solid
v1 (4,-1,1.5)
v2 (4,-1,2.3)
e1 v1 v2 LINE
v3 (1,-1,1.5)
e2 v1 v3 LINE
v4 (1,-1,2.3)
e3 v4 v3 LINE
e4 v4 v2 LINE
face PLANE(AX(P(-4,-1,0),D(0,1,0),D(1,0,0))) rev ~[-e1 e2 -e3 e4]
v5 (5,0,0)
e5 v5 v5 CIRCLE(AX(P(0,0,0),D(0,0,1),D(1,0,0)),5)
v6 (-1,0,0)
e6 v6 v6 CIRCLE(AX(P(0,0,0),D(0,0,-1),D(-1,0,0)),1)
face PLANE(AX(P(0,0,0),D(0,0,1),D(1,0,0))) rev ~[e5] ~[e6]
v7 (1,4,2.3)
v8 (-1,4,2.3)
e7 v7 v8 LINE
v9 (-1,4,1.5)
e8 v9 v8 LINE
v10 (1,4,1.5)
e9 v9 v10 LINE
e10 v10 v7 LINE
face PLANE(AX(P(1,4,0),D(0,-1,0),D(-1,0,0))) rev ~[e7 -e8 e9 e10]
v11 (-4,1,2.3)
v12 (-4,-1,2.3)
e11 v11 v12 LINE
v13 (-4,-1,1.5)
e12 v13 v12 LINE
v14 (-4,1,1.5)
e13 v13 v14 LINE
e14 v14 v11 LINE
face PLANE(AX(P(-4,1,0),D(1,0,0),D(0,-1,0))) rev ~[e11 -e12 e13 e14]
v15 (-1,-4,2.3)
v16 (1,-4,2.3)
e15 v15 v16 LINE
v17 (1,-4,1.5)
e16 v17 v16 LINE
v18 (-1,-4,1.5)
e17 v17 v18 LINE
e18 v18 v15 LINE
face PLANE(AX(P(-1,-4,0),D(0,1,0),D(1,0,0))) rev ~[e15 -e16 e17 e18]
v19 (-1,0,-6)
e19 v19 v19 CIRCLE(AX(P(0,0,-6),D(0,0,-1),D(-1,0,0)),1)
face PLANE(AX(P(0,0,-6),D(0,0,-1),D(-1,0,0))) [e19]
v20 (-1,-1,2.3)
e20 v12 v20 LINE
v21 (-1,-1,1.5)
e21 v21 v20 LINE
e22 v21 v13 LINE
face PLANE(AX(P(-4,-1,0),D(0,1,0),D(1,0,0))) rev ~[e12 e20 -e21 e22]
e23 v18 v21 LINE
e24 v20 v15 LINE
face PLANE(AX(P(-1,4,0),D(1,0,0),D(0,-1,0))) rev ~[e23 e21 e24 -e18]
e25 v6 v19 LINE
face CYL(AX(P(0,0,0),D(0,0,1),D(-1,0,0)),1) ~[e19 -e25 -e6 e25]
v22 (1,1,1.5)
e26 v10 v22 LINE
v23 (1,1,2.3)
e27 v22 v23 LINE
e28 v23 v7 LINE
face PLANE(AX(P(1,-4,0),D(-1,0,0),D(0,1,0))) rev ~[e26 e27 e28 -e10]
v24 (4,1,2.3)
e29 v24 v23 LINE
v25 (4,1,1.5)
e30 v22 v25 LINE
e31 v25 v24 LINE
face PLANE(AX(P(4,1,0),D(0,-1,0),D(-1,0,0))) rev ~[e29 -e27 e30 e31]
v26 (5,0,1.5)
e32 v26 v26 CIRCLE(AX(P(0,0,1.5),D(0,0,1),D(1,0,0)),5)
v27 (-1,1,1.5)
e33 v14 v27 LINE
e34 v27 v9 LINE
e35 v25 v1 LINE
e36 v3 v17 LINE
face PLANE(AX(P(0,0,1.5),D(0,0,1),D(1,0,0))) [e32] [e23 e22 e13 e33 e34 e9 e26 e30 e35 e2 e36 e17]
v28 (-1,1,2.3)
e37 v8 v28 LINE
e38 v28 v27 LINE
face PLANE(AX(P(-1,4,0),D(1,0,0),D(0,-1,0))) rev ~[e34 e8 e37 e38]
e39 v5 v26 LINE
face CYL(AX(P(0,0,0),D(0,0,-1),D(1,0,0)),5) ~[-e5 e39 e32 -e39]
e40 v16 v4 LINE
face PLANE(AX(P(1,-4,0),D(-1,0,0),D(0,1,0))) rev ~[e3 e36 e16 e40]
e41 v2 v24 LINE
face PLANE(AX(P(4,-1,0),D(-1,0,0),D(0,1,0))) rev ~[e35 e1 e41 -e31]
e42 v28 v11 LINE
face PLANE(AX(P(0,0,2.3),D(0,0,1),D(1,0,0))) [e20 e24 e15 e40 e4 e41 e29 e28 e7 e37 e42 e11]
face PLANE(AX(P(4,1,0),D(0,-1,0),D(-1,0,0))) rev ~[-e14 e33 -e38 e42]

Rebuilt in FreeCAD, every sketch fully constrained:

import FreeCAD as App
import Part
import Sketcher
from FreeCAD import Vector

doc = App.newDocument("Part")
params = doc.addObject("Spreadsheet::Sheet", "Params")
for row, (alias, value) in enumerate([
    ("sketch1_diameter", "10 mm"),
    ("pad1_length", "1.5 mm"),
    ("sketch2_width", "2 mm"),
    ("sketch2_height", "8 mm"),
    ("pad2_length", "2.3 mm"),
    ("sketch3_width", "8 mm"),
    ("sketch3_height", "2 mm"),
    ("pad3_length", "2.3 mm"),
    ("sketch4_diameter", "2 mm"),
    ("pad4_length", "6 mm"),
], start=1):
    params.set(f"A{row}", alias)
    params.set(f"B{row}", "=" + value)
    params.setAlias(f"B{row}", alias)

body = doc.addObject("PartDesign::Body", "Body")

sketch1 = body.newObject("Sketcher::SketchObject", "Sketch")
sketch1.AttachmentSupport = (doc.getObject("XY_Plane"), [""])
sketch1.MapMode = "FlatFace"
sketch1.addGeometry(Part.Circle(Vector(0, 0, 0), Vector(0, 0, 1), 5), False)
sketch1.addConstraint([
    Sketcher.Constraint("Coincident", 0, 3, -1, 1),
    Sketcher.Constraint("Diameter", 0, 10.0),
])
sketch1.setExpression("Constraints[1]", "Params.sketch1_diameter")
pad1 = body.newObject("PartDesign::Pad", "Pad")
pad1.Profile = sketch1
pad1.setExpression("Length", "Params.pad1_length")

sketch2 = body.newObject("Sketcher::SketchObject", "Sketch001")
sketch2.AttachmentSupport = (doc.getObject("XY_Plane"), [""])
sketch2.MapMode = "FlatFace"
sketch2.addGeometry([
    Part.LineSegment(Vector(1, 4, 0), Vector(-1, 4, 0)),
    Part.LineSegment(Vector(-1, 4, 0), Vector(-1, -4, 0)),
    Part.LineSegment(Vector(-1, -4, 0), Vector(1, -4, 0)),
    Part.LineSegment(Vector(1, -4, 0), Vector(1, 4, 0)),
], False)
sketch2.addConstraint([
    Sketcher.Constraint("Coincident", 0, 2, 1, 1),
    Sketcher.Constraint("Coincident", 1, 2, 2, 1),
    Sketcher.Constraint("Coincident", 2, 2, 3, 1),
    Sketcher.Constraint("Coincident", 3, 2, 0, 1),
    Sketcher.Constraint("Horizontal", 0),
    Sketcher.Constraint("Vertical", 1),
    Sketcher.Constraint("Horizontal", 2),
    Sketcher.Constraint("Vertical", 3),
    Sketcher.Constraint("Symmetric", 0, 2, 2, 2, -1, 1),
    Sketcher.Constraint("DistanceX", 0, 2, 0, 1, 2.0),
    Sketcher.Constraint("DistanceY", 1, 2, 1, 1, 8.0),
])
sketch2.setExpression("Constraints[9]", "Params.sketch2_width")
sketch2.setExpression("Constraints[10]", "Params.sketch2_height")
pad2 = body.newObject("PartDesign::Pad", "Pad001")
pad2.Profile = sketch2
pad2.setExpression("Length", "Params.pad2_length")

sketch3 = body.newObject("Sketcher::SketchObject", "Sketch002")
sketch3.AttachmentSupport = (doc.getObject("XY_Plane"), [""])
sketch3.MapMode = "FlatFace"
sketch3.addGeometry([
    Part.LineSegment(Vector(-4, 1, 0), Vector(-4, -1, 0)),
    Part.LineSegment(Vector(-4, -1, 0), Vector(4, -1, 0)),
    Part.LineSegment(Vector(4, -1, 0), Vector(4, 1, 0)),
    Part.LineSegment(Vector(4, 1, 0), Vector(-4, 1, 0)),
], False)
sketch3.addConstraint([
    Sketcher.Constraint("Coincident", 0, 2, 1, 1),
    Sketcher.Constraint("Coincident", 1, 2, 2, 1),
    Sketcher.Constraint("Coincident", 2, 2, 3, 1),
    Sketcher.Constraint("Coincident", 3, 2, 0, 1),
    Sketcher.Constraint("Vertical", 0),
    Sketcher.Constraint("Horizontal", 1),
    Sketcher.Constraint("Vertical", 2),
    Sketcher.Constraint("Horizontal", 3),
    Sketcher.Constraint("Symmetric", 0, 2, 2, 2, -1, 1),
    Sketcher.Constraint("DistanceX", 1, 1, 1, 2, 8.0),
    Sketcher.Constraint("DistanceY", 0, 2, 0, 1, 2.0),
])
sketch3.setExpression("Constraints[9]", "Params.sketch3_width")
sketch3.setExpression("Constraints[10]", "Params.sketch3_height")
pad3 = body.newObject("PartDesign::Pad", "Pad002")
pad3.Profile = sketch3
pad3.setExpression("Length", "Params.pad3_length")

sketch4 = body.newObject("Sketcher::SketchObject", "Sketch003")
sketch4.AttachmentSupport = (doc.getObject("XY_Plane"), [""])
sketch4.MapMode = "FlatFace"
sketch4.addGeometry(Part.Circle(Vector(0, 0, 0), Vector(0, 0, 1), 1), False)
sketch4.addConstraint([
    Sketcher.Constraint("Coincident", 0, 3, -1, 1),
    Sketcher.Constraint("Diameter", 0, 2.0),
])
sketch4.setExpression("Constraints[1]", "Params.sketch4_diameter")
pad4 = body.newObject("PartDesign::Pad", "Pad003")
pad4.Profile = sketch4
pad4.setExpression("Length", "Params.pad4_length")
pad4.Reversed = True

doc.recompute()
